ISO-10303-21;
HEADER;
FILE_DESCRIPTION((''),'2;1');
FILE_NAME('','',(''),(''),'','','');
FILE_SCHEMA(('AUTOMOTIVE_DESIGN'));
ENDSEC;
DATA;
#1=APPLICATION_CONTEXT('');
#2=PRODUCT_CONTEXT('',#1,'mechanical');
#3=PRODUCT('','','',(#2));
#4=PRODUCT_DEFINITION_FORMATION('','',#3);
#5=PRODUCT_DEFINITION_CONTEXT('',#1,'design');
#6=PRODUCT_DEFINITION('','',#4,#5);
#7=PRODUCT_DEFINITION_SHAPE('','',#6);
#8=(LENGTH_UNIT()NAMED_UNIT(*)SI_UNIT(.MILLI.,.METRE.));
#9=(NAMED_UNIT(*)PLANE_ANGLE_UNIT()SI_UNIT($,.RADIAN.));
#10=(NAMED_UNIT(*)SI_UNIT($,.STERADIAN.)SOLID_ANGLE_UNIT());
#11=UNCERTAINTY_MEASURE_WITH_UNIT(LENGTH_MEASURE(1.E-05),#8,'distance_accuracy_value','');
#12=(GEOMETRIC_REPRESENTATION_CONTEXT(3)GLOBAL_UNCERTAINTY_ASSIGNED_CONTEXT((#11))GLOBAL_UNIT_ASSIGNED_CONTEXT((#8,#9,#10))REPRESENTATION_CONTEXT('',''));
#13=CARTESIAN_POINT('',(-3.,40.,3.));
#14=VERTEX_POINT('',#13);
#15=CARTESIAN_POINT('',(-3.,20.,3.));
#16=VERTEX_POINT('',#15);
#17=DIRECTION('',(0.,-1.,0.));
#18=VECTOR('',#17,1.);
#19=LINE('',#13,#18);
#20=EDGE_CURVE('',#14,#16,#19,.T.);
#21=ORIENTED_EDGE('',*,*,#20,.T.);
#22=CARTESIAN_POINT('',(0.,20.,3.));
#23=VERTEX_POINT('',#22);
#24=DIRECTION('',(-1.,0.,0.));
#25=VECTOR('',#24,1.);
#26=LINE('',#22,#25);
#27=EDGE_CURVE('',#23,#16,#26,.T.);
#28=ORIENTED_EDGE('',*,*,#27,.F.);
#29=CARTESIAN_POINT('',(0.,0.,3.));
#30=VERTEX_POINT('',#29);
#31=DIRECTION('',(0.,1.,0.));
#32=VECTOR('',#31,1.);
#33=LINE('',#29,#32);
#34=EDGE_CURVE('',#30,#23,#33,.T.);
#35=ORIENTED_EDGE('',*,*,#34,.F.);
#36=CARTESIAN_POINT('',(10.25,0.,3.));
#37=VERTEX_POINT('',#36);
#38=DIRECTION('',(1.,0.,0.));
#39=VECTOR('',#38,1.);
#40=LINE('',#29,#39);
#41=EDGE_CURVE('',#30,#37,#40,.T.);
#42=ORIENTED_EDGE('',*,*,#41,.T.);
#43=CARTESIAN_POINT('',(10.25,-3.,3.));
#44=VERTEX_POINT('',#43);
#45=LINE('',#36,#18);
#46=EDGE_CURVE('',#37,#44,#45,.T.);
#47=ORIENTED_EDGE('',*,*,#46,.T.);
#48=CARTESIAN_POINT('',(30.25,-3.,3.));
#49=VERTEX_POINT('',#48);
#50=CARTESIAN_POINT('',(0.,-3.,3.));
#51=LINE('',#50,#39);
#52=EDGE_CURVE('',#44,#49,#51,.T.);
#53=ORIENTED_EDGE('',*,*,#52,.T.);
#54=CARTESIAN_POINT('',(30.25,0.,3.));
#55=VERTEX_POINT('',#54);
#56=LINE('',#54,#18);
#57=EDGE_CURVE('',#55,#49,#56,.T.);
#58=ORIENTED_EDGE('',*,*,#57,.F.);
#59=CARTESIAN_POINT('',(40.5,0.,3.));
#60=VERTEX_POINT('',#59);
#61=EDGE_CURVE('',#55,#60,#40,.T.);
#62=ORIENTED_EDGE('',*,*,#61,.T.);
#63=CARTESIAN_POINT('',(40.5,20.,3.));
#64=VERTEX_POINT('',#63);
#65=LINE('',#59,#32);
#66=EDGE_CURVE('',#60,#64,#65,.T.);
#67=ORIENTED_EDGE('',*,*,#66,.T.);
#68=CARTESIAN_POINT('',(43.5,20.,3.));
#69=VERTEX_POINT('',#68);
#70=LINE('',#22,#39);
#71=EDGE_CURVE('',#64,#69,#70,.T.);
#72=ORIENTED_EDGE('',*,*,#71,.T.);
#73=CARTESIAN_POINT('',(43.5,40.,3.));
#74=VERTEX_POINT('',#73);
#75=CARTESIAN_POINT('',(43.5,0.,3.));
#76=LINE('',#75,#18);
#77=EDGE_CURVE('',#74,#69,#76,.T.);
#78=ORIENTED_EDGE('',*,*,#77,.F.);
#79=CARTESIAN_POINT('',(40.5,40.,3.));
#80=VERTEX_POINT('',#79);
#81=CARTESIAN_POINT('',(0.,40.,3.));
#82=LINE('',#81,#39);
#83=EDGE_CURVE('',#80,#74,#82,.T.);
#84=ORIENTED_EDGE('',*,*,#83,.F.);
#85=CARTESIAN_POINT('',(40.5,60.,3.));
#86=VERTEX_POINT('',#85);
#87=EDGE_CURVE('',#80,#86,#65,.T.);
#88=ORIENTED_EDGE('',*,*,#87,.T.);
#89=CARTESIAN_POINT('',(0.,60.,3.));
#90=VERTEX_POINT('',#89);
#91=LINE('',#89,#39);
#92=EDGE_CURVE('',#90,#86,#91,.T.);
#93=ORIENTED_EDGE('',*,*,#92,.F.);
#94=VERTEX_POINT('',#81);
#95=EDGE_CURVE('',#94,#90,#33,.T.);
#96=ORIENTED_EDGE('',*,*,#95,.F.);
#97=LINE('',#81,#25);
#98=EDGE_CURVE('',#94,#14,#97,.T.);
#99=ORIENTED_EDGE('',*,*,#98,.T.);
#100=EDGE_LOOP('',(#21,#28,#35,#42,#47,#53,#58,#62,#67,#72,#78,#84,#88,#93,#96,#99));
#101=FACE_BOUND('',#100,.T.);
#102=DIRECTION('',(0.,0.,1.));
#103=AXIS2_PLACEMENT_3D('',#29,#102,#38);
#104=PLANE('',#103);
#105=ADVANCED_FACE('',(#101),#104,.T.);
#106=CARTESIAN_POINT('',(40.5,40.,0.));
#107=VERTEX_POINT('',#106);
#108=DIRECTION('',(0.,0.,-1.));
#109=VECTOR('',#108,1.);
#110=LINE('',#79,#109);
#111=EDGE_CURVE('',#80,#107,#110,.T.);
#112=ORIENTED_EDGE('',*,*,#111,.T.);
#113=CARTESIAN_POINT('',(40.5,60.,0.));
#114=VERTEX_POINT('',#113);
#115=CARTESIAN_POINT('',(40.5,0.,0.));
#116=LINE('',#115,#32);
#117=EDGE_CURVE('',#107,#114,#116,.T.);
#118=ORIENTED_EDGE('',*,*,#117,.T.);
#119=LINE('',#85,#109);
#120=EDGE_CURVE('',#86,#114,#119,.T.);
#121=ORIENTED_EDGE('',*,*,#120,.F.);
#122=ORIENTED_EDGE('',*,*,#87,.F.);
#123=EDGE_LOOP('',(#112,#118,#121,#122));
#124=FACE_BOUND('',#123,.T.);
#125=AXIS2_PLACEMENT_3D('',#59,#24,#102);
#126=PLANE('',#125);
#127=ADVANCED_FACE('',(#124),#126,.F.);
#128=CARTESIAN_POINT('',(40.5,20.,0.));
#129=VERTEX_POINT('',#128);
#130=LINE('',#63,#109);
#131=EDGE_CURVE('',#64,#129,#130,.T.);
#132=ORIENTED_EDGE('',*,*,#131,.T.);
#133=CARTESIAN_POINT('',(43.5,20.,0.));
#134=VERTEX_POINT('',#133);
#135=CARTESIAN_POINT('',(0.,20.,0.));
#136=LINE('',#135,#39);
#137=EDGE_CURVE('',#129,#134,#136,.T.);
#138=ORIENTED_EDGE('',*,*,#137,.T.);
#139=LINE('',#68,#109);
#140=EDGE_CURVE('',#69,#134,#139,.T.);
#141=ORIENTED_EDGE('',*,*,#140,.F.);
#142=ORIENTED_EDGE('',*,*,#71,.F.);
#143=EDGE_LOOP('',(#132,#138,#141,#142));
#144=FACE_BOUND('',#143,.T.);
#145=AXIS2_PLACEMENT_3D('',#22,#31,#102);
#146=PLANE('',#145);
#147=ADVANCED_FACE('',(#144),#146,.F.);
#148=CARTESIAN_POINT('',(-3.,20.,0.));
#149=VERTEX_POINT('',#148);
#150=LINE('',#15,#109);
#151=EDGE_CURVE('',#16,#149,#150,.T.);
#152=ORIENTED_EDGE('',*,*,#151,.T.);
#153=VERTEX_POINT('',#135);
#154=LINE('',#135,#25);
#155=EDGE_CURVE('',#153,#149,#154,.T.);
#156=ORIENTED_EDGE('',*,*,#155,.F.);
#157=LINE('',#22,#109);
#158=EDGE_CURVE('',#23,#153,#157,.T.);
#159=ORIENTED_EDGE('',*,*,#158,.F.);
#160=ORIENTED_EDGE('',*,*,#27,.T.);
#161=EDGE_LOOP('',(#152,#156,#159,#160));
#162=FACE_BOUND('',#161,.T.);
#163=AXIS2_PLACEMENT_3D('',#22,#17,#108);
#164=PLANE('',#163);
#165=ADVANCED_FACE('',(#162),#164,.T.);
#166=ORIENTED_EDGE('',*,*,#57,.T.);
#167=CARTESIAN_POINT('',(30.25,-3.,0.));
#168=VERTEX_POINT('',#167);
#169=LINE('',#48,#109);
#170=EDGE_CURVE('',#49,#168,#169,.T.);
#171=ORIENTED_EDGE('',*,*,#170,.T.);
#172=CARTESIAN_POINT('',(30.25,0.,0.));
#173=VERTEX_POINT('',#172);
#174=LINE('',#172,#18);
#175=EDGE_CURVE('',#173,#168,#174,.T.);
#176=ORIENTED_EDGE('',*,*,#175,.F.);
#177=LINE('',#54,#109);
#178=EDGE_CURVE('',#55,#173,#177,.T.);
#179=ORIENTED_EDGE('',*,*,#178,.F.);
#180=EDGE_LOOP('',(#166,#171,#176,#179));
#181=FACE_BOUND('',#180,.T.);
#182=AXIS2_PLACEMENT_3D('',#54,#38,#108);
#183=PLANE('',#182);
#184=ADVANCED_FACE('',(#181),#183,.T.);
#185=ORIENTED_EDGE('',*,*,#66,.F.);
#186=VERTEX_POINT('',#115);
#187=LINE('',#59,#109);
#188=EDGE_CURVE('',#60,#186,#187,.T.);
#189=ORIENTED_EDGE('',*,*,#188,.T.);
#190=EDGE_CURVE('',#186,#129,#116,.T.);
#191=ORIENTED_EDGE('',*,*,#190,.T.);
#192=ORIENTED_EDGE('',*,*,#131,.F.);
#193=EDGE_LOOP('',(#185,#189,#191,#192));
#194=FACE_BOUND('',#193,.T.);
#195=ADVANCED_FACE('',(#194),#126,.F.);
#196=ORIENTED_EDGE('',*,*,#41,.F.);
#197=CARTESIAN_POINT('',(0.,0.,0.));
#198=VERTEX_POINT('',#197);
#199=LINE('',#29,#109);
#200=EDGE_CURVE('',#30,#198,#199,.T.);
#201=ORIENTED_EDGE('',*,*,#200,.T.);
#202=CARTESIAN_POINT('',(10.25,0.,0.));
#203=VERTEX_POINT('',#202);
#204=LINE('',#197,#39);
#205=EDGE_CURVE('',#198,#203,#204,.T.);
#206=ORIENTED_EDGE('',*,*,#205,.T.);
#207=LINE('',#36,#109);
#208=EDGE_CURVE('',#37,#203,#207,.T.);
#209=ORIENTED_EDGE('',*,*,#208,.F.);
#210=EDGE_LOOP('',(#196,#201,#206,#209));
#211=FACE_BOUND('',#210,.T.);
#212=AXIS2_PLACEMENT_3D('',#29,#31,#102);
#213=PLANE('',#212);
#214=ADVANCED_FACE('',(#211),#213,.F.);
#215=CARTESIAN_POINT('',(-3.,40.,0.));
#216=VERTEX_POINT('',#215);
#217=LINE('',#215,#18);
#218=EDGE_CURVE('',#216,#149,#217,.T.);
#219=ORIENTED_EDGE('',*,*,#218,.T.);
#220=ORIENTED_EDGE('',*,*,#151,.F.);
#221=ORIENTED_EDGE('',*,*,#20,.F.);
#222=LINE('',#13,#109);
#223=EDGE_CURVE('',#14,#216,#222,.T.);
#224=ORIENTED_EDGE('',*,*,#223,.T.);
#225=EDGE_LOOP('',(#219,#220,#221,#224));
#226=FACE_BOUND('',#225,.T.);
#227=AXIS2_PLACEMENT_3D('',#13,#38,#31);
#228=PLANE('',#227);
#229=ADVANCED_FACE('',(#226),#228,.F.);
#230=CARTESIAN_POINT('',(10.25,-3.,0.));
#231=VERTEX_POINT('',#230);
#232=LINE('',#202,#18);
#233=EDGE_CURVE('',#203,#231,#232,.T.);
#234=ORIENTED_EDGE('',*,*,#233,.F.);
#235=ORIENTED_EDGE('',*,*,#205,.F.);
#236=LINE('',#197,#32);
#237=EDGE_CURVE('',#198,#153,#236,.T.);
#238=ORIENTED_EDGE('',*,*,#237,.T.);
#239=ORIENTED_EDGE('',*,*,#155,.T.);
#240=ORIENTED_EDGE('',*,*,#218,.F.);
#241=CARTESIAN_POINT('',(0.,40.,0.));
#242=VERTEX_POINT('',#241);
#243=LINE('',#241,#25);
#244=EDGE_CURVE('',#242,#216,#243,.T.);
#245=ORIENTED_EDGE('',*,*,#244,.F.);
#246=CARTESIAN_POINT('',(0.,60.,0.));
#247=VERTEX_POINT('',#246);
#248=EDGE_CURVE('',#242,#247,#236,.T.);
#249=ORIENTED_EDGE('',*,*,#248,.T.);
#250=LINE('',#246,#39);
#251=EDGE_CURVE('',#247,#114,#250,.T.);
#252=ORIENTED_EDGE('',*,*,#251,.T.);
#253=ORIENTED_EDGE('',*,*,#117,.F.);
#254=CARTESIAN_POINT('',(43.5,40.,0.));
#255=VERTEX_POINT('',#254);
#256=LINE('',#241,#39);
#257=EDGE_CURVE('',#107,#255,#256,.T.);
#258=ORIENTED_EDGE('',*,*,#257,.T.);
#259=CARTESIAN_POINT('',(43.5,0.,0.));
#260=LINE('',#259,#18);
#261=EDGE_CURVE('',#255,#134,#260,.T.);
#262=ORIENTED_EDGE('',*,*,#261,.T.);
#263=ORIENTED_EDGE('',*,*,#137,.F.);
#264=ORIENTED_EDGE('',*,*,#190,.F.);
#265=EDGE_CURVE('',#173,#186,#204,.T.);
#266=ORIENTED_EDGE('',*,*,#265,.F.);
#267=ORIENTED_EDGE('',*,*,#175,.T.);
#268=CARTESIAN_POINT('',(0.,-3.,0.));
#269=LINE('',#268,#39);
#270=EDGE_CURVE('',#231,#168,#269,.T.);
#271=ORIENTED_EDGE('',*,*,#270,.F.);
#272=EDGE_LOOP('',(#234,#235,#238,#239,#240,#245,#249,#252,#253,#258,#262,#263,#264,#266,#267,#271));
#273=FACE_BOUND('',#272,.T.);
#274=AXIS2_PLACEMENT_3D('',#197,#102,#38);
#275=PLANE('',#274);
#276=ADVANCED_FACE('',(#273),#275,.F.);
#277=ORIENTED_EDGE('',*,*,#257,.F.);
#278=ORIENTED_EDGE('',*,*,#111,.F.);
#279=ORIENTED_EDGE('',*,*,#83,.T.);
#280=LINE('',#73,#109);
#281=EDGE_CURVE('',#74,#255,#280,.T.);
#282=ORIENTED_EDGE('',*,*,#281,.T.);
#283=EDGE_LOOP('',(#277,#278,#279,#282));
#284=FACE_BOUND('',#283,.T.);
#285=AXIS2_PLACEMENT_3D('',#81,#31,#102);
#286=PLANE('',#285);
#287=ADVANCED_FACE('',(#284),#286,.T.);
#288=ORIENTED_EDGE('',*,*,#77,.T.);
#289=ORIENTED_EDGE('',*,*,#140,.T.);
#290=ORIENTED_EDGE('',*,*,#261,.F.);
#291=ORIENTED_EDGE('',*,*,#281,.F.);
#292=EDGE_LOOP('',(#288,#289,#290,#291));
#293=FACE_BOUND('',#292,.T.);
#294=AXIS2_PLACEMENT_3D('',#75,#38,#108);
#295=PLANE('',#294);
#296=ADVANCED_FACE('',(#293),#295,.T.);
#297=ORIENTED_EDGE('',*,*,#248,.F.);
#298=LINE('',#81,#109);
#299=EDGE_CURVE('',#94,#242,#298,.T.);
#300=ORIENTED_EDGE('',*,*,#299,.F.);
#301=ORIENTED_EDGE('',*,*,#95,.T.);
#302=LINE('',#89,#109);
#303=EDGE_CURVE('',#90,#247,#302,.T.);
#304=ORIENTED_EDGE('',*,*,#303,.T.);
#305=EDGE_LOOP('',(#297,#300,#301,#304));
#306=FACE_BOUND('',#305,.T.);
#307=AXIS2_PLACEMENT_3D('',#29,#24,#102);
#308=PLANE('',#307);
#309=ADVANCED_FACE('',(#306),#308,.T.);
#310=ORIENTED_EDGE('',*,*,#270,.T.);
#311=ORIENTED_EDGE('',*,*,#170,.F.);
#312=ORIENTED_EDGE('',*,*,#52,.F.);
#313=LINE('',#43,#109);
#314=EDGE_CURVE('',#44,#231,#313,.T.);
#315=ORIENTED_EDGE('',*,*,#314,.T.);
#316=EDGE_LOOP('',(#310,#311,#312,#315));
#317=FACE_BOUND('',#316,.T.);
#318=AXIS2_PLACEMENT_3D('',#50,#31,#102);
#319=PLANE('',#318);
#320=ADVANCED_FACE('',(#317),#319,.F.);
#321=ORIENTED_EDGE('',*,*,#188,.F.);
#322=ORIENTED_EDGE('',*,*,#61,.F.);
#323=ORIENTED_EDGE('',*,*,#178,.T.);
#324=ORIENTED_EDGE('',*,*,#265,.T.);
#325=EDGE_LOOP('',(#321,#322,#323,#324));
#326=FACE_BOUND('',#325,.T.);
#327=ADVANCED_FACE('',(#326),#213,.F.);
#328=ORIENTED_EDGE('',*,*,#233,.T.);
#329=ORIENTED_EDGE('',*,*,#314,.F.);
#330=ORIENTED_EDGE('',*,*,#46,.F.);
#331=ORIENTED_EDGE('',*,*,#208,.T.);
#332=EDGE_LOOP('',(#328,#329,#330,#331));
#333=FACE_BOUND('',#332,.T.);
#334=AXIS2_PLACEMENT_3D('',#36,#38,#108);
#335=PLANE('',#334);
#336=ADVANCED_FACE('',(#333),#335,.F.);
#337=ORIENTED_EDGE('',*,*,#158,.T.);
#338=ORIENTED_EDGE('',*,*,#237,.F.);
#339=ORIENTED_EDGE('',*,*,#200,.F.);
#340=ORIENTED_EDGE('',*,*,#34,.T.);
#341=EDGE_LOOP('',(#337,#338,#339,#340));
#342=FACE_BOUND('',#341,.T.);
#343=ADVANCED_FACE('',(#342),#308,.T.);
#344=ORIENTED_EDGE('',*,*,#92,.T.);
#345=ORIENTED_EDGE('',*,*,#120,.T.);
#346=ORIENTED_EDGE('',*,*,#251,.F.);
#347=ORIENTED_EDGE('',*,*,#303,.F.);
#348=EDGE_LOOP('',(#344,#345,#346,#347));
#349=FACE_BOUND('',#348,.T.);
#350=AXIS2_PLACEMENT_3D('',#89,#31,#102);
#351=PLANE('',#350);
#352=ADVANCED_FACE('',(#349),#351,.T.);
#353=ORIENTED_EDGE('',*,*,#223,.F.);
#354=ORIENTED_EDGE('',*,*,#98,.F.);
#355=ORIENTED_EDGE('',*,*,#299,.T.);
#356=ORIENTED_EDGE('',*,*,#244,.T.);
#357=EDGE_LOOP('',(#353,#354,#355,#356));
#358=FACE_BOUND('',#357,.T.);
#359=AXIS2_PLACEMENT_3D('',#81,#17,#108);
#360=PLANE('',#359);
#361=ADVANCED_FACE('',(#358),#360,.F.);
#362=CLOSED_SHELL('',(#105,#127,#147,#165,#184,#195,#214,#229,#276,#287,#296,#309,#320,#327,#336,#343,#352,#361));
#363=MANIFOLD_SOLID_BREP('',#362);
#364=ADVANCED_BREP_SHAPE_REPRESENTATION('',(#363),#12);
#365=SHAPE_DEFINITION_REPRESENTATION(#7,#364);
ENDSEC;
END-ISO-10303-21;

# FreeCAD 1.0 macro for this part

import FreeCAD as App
import Part
import Sketcher


def add_polygon(sketch, points):
    """Adds a closed chain of lines whose ends are joined by coincident constraints."""
    first, n = sketch.GeometryCount, len(points)
    for a, b in zip(points, points[1:] + points[:1]):
        sketch.addGeometry(Part.LineSegment(App.Vector(*a, 0), App.Vector(*b, 0)), False)
    for i in range(n):
        sketch.addConstraint(Sketcher.Constraint("Coincident", first + i, 2, first + (i + 1) % n, 1))

doc = App.newDocument("Part")
body = doc.addObject("PartDesign::Body", "Body")

# Sketch on XY plane
sketch1 = body.newObject("Sketcher::SketchObject", "Sketch")
sketch1.AttachmentSupport = (doc.getObject("XY_Plane"), [""])
sketch1.MapMode = "FlatFace"
add_polygon(sketch1, [(0, 20), (0, 0), (10.2, 0), (10.2, -3), (30.2, -3), (30.2, 0), (40.5, 0), (40.5, 20), (43.5, 20), (43.5, 40), (40.5, 40), (40.5, 60), (0, 60), (0, 40), (-3, 40), (-3, 20)])  # lines 0-15
sketch1.addConstraint([
    Sketcher.Constraint("Vertical", 0),
    Sketcher.Constraint("Horizontal", 1),
    Sketcher.Constraint("Vertical", 2),
    Sketcher.Constraint("Horizontal", 3),
    Sketcher.Constraint("Vertical", 4),
    Sketcher.Constraint("Horizontal", 5),
    Sketcher.Constraint("Vertical", 6),
    Sketcher.Constraint("Horizontal", 7),
    Sketcher.Constraint("Vertical", 8),
    Sketcher.Constraint("Horizontal", 9),
    Sketcher.Constraint("Vertical", 10),
    Sketcher.Constraint("Horizontal", 11),
    Sketcher.Constraint("Vertical", 12),
    Sketcher.Constraint("Horizontal", 13),
    Sketcher.Constraint("Vertical", 14),
    Sketcher.Constraint("Horizontal", 15),
    Sketcher.Constraint("Coincident", 0, 2, -1, 1),
    Sketcher.Constraint("PointOnObject", 4, 2, -1),
    Sketcher.Constraint("PointOnObject", 11, 2, -2),
    Sketcher.Constraint("Horizontal", 9, 2, 12, 2),
    Sketcher.Constraint("Horizontal", 7, 2, 14, 2),
    Sketcher.Constraint("Vertical", 6, 2, 9, 2),
    Sketcher.Constraint("Equal", 1, 5),
    Sketcher.Constraint("Equal", 9, 13),
    Sketcher.Constraint("Equal", 3, 0),
    Sketcher.Constraint("Equal", 15, 2),
    Sketcher.Constraint("Equal", 6, 8),
    Sketcher.Constraint("Equal", 8, 10),
    Sketcher.Constraint("DistanceX", 3, 1, 3, 2, 20.0),
    Sketcher.Constraint("DistanceX", 7, 1, 7, 2, 3.0),
    Sketcher.Constraint("DistanceX", 11, 2, 11, 1, 40.5),
])
pad1 = body.newObject("PartDesign::Pad", "Pad")
pad1.Profile = sketch1
pad1.Length = 3

doc.recompute()
